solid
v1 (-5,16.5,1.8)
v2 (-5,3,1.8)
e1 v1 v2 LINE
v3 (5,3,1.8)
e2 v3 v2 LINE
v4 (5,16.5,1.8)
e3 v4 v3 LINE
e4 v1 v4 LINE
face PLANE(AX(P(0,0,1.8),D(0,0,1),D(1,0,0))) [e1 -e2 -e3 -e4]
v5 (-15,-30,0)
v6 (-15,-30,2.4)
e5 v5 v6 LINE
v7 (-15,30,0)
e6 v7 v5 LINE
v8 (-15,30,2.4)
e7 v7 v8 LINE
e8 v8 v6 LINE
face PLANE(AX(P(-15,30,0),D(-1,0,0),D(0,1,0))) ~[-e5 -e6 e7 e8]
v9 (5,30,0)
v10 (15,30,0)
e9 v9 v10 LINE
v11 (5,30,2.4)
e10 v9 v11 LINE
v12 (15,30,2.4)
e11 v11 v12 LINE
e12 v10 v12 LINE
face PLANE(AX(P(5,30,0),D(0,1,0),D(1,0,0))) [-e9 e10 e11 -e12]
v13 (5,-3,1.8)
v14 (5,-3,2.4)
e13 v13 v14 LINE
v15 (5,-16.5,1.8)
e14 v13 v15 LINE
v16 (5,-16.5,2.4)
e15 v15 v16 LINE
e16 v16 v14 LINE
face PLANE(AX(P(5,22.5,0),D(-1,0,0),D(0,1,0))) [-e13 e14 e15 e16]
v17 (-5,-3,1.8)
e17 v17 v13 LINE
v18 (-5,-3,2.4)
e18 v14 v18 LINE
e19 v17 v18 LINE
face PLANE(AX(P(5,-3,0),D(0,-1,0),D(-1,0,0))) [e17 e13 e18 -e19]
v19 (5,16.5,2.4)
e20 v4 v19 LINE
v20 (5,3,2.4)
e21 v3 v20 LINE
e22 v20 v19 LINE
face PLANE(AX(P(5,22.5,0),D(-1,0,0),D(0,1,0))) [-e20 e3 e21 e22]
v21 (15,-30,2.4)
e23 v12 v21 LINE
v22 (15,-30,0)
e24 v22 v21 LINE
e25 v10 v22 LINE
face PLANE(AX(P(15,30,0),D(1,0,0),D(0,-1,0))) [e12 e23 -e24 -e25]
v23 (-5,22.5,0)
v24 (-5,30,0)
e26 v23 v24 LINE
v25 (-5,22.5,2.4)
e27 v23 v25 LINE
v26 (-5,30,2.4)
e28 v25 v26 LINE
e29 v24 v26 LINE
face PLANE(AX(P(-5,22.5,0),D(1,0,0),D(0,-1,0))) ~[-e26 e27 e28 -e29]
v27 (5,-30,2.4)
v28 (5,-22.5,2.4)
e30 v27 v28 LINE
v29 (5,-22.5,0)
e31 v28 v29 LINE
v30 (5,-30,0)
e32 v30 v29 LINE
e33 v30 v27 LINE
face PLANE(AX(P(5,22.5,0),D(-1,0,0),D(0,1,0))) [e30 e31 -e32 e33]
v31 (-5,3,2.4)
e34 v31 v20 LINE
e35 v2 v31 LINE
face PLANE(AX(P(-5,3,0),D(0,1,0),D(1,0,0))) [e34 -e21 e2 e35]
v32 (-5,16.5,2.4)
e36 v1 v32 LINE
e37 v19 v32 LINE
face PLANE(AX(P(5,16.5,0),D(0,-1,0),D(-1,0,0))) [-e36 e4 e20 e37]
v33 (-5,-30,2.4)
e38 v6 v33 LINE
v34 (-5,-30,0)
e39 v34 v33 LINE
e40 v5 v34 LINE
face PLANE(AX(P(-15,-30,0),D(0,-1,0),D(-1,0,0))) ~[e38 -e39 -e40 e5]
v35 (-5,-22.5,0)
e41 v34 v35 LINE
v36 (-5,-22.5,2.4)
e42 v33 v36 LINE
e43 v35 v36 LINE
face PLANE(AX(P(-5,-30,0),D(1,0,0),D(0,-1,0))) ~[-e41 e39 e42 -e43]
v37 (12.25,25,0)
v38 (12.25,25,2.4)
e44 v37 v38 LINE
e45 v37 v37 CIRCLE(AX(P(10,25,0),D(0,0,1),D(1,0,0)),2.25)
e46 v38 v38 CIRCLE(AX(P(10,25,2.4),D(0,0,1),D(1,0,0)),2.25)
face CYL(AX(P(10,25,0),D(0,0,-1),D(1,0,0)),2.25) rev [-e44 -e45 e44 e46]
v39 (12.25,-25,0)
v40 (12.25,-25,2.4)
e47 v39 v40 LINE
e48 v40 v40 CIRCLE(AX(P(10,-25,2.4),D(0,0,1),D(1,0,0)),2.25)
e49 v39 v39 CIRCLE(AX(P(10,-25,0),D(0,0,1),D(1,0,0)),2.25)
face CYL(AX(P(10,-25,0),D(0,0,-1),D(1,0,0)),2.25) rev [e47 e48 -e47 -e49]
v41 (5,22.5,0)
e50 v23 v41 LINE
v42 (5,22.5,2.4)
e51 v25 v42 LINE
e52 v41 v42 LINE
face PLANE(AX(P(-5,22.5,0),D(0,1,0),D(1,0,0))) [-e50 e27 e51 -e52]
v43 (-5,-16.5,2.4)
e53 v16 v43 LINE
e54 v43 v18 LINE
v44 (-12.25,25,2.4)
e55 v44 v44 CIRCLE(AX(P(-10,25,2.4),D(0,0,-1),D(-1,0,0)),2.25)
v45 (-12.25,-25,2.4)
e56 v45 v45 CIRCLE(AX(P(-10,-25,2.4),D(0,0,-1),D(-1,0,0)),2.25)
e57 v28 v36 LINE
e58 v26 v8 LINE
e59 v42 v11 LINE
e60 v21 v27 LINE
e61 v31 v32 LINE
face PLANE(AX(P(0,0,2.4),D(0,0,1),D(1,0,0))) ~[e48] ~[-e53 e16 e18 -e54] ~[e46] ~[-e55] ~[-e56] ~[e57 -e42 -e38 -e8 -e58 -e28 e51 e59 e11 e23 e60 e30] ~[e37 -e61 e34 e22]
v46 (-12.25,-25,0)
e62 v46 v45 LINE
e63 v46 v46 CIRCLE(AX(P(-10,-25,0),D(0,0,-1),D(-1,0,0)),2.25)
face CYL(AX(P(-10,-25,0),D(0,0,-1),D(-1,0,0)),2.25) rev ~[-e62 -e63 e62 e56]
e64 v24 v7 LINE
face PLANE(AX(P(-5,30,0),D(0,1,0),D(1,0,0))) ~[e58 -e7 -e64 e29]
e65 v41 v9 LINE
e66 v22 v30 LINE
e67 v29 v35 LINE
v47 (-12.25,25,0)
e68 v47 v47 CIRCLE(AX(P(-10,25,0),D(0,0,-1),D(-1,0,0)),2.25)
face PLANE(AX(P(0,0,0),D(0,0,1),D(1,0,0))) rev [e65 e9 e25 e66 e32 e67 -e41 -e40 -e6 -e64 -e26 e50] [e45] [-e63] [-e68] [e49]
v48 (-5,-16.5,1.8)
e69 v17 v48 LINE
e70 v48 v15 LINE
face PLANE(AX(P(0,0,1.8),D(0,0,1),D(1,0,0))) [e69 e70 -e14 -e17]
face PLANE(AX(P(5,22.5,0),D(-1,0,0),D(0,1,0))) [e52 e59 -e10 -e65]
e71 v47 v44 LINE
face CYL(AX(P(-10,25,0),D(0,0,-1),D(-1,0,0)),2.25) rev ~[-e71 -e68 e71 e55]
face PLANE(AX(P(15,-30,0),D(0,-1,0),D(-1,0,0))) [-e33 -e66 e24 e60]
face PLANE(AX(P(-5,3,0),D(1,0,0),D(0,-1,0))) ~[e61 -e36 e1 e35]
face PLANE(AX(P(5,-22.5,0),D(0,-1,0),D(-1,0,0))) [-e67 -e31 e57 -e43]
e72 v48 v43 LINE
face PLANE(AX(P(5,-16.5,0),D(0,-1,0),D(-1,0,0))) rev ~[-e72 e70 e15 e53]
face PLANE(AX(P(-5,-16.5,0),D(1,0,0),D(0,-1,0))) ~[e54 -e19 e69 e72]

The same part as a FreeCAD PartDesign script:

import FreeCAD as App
import Part
import Sketcher

doc = App.newDocument("Part")
body = doc.addObject("PartDesign::Body", "Body")

# Sketch on XY plane
sketch1 = body.newObject("Sketcher::SketchObject", "Sketch")
sketch1.AttachmentSupport = (doc.getObject("XY_Plane"), [""])
sketch1.MapMode = "FlatFace"
sketch1.addGeometry([
    Part.LineSegment(App.Vector(5, 22, 0), App.Vector(-5, 22, 0)),
    Part.LineSegment(App.Vector(-5, 22, 0), App.Vector(-5, -22, 0)),
    Part.LineSegment(App.Vector(-5, -22, 0), App.Vector(5, -22, 0)),
    Part.LineSegment(App.Vector(5, -22, 0), App.Vector(5, 22, 0)),
], False)
sketch1.addConstraint([
    Sketcher.Constraint("Coincident", 0, 2, 1, 1),
    Sketcher.Constraint("Coincident", 1, 2, 2, 1),
    Sketcher.Constraint("Coincident", 2, 2, 3, 1),
    Sketcher.Constraint("Coincident", 3, 2, 0, 1),
    Sketcher.Constraint("Horizontal", 0),
    Sketcher.Constraint("Vertical", 1),
    Sketcher.Constraint("Horizontal", 2),
    Sketcher.Constraint("Vertical", 3),
    Sketcher.Constraint("Symmetric", 0, 2, 2, 2, -1, 1),
    Sketcher.Constraint("DistanceX", 0, 2, 0, 1, 10.0),
    Sketcher.Constraint("DistanceY", 1, 2, 1, 1, 45.0),
])
pad1 = body.newObject("PartDesign::Pad", "Pad")
pad1.Profile = sketch1
pad1.Length = 1.8

# Sketch on XY plane
sketch2 = body.newObject("Sketcher::SketchObject", "Sketch001")
sketch2.AttachmentSupport = (doc.getObject("XY_Plane"), [""])
sketch2.MapMode = "FlatFace"
sketch2.addGeometry([
    Part.LineSegment(App.Vector(15, 30, 0), App.Vector(5, 30, 0)),  # 0
    Part.LineSegment(App.Vector(5, 30, 0), App.Vector(5, -30, 0)),  # 1
    Part.LineSegment(App.Vector(5, -30, 0), App.Vector(15, -30, 0)),  # 2
    Part.LineSegment(App.Vector(15, -30, 0), App.Vector(15, 30, 0)),  # 3
    Part.Circle(App.Vector(10, -25, 0), App.Vector(0, 0, 1), 2.2),  # 4
    Part.Circle(App.Vector(10, 25, 0), App.Vector(0, 0, 1), 2.2),  # 5
], False)
sketch2.addConstraint([
    Sketcher.Constraint("Coincident", 0, 2, 1, 1),
    Sketcher.Constraint("Coincident", 1, 2, 2, 1),
    Sketcher.Constraint("Coincident", 2, 2, 3, 1),
    Sketcher.Constraint("Coincident", 3, 2, 0, 1),
    Sketcher.Constraint("Horizontal", 0),
    Sketcher.Constraint("Vertical", 1),
    Sketcher.Constraint("Horizontal", 2),
    Sketcher.Constraint("Vertical", 3),
    Sketcher.Constraint("Equal", 4, 5),
    Sketcher.Constraint("Symmetric", 4, 3, 5, 3, -1),
    Sketcher.Constraint("Diameter", 4, 4.5),
    Sketcher.Constraint("DistanceX", 0, 2, 0, 1, 10.0),
    Sketcher.Constraint("DistanceY", 1, 2, 1, 1, 60.0),
    Sketcher.Constraint("DistanceX", -1, 1, 4, 3, 10.0),
    Sketcher.Constraint("DistanceX", -1, 1, 0, 2, 5.0),
    Sketcher.Constraint("DistanceY", 5, 3, 0, 2, 5.0),
    Sketcher.Constraint("DistanceY", 1, 2, 4, 3, 5.0),
])
pad2 = body.newObject("PartDesign::Pad", "Pad001")
pad2.Profile = sketch2
pad2.Length = 2.4

# Sketch on XY plane
sketch3 = body.newObject("Sketcher::SketchObject", "Sketch002")
sketch3.AttachmentSupport = (doc.getObject("XY_Plane"), [""])
sketch3.MapMode = "FlatFace"
sketch3.addGeometry([
    Part.LineSegment(App.Vector(5, 16, 0), App.Vector(5, 22, 0)),  # 0
    Part.LineSegment(App.Vector(5, 22, 0), App.Vector(-5, 22, 0)),  # 1
    Part.LineSegment(App.Vector(-5, 22, 0), App.Vector(-5, 16, 0)),  # 2
    Part.LineSegment(App.Vector(-5, 16, 0), App.Vector(5, 16, 0)),  # 3
    Part.LineSegment(App.Vector(5, -3, 0), App.Vector(5, 3, 0)),  # 4
    Part.LineSegment(App.Vector(5, 3, 0), App.Vector(-5, 3, 0)),  # 5
    Part.LineSegment(App.Vector(-5, 3, 0), App.Vector(-5, -3, 0)),  # 6
    Part.LineSegment(App.Vector(-5, -3, 0), App.Vector(5, -3, 0)),  # 7
    Part.LineSegment(App.Vector(-5, -22, 0), App.Vector(5, -22, 0)),  # 8
    Part.LineSegment(App.Vector(5, -22, 0), App.Vector(5, -16, 0)),  # 9
    Part.LineSegment(App.Vector(5, -16, 0), App.Vector(-5, -16, 0)),  # 10
    Part.LineSegment(App.Vector(-5, -16, 0), App.Vector(-5, -22, 0)),  # 11
], False)
sketch3.addConstraint([
    Sketcher.Constraint("Coincident", 0, 2, 1, 1),
    Sketcher.Constraint("Coincident", 1, 2, 2, 1),
    Sketcher.Constraint("Coincident", 2, 2, 3, 1),
    Sketcher.Constraint("Coincident", 3, 2, 0, 1),
    Sketcher.Constraint("Coincident", 4, 2, 5, 1),
    Sketcher.Constraint("Coincident", 5, 2, 6, 1),
    Sketcher.Constraint("Coincident", 6, 2, 7, 1),
    Sketcher.Constraint("Coincident", 7, 2, 4, 1),
    Sketcher.Constraint("Coincident", 8, 2, 9, 1),
    Sketcher.Constraint("Coincident", 9, 2, 10, 1),
    Sketcher.Constraint("Coincident", 10, 2, 11, 1),
    Sketcher.Constraint("Coincident", 11, 2, 8, 1),
    Sketcher.Constraint("Vertical", 0),
    Sketcher.Constraint("Horizontal", 1),
    Sketcher.Constraint("Vertical", 2),
    Sketcher.Constraint("Horizontal", 3),
    Sketcher.Constraint("Vertical", 4),
    Sketcher.Constraint("Horizontal", 5),
    Sketcher.Constraint("Vertical", 6),
    Sketcher.Constraint("Horizontal", 7),
    Sketcher.Constraint("Horizontal", 8),
    Sketcher.Constraint("Vertical", 9),
    Sketcher.Constraint("Horizontal", 10),
    Sketcher.Constraint("Vertical", 11),
    Sketcher.Constraint("Symmetric", 4, 2, 6, 2, -1, 1),
    Sketcher.Constraint("Symmetric", 1, 2, 8, 2, -1, 1),
    Sketcher.Constraint("Symmetric", 3, 2, 10, 2, -1, 1),
    Sketcher.Constraint("Vertical", 3, 2, 4, 2),
    Sketcher.Constraint("Vertical", 2, 2, 5, 2),
    Sketcher.Constraint("Equal", 2, 4),
    Sketcher.Constraint("DistanceX", 1, 2, 1, 1, 10.0),
    Sketcher.Constraint("DistanceY", 0, 1, 0, 2, 6.0),
    Sketcher.Constraint("DistanceY", 8, 2, 3, 2, 39.0),
])
pad3 = body.newObject("PartDesign::Pad", "Pad002")
pad3.Profile = sketch3
pad3.Length = 2.4
doc.recompute()

mirrored = body.newObject("PartDesign::Mirrored", "Mirrored")
mirrored.Originals = [pad2, pad3]
mirrored.MirrorPlane = (doc.getObject("YZ_Plane"), [""])
body.Tip = mirrored

doc.recompute()
